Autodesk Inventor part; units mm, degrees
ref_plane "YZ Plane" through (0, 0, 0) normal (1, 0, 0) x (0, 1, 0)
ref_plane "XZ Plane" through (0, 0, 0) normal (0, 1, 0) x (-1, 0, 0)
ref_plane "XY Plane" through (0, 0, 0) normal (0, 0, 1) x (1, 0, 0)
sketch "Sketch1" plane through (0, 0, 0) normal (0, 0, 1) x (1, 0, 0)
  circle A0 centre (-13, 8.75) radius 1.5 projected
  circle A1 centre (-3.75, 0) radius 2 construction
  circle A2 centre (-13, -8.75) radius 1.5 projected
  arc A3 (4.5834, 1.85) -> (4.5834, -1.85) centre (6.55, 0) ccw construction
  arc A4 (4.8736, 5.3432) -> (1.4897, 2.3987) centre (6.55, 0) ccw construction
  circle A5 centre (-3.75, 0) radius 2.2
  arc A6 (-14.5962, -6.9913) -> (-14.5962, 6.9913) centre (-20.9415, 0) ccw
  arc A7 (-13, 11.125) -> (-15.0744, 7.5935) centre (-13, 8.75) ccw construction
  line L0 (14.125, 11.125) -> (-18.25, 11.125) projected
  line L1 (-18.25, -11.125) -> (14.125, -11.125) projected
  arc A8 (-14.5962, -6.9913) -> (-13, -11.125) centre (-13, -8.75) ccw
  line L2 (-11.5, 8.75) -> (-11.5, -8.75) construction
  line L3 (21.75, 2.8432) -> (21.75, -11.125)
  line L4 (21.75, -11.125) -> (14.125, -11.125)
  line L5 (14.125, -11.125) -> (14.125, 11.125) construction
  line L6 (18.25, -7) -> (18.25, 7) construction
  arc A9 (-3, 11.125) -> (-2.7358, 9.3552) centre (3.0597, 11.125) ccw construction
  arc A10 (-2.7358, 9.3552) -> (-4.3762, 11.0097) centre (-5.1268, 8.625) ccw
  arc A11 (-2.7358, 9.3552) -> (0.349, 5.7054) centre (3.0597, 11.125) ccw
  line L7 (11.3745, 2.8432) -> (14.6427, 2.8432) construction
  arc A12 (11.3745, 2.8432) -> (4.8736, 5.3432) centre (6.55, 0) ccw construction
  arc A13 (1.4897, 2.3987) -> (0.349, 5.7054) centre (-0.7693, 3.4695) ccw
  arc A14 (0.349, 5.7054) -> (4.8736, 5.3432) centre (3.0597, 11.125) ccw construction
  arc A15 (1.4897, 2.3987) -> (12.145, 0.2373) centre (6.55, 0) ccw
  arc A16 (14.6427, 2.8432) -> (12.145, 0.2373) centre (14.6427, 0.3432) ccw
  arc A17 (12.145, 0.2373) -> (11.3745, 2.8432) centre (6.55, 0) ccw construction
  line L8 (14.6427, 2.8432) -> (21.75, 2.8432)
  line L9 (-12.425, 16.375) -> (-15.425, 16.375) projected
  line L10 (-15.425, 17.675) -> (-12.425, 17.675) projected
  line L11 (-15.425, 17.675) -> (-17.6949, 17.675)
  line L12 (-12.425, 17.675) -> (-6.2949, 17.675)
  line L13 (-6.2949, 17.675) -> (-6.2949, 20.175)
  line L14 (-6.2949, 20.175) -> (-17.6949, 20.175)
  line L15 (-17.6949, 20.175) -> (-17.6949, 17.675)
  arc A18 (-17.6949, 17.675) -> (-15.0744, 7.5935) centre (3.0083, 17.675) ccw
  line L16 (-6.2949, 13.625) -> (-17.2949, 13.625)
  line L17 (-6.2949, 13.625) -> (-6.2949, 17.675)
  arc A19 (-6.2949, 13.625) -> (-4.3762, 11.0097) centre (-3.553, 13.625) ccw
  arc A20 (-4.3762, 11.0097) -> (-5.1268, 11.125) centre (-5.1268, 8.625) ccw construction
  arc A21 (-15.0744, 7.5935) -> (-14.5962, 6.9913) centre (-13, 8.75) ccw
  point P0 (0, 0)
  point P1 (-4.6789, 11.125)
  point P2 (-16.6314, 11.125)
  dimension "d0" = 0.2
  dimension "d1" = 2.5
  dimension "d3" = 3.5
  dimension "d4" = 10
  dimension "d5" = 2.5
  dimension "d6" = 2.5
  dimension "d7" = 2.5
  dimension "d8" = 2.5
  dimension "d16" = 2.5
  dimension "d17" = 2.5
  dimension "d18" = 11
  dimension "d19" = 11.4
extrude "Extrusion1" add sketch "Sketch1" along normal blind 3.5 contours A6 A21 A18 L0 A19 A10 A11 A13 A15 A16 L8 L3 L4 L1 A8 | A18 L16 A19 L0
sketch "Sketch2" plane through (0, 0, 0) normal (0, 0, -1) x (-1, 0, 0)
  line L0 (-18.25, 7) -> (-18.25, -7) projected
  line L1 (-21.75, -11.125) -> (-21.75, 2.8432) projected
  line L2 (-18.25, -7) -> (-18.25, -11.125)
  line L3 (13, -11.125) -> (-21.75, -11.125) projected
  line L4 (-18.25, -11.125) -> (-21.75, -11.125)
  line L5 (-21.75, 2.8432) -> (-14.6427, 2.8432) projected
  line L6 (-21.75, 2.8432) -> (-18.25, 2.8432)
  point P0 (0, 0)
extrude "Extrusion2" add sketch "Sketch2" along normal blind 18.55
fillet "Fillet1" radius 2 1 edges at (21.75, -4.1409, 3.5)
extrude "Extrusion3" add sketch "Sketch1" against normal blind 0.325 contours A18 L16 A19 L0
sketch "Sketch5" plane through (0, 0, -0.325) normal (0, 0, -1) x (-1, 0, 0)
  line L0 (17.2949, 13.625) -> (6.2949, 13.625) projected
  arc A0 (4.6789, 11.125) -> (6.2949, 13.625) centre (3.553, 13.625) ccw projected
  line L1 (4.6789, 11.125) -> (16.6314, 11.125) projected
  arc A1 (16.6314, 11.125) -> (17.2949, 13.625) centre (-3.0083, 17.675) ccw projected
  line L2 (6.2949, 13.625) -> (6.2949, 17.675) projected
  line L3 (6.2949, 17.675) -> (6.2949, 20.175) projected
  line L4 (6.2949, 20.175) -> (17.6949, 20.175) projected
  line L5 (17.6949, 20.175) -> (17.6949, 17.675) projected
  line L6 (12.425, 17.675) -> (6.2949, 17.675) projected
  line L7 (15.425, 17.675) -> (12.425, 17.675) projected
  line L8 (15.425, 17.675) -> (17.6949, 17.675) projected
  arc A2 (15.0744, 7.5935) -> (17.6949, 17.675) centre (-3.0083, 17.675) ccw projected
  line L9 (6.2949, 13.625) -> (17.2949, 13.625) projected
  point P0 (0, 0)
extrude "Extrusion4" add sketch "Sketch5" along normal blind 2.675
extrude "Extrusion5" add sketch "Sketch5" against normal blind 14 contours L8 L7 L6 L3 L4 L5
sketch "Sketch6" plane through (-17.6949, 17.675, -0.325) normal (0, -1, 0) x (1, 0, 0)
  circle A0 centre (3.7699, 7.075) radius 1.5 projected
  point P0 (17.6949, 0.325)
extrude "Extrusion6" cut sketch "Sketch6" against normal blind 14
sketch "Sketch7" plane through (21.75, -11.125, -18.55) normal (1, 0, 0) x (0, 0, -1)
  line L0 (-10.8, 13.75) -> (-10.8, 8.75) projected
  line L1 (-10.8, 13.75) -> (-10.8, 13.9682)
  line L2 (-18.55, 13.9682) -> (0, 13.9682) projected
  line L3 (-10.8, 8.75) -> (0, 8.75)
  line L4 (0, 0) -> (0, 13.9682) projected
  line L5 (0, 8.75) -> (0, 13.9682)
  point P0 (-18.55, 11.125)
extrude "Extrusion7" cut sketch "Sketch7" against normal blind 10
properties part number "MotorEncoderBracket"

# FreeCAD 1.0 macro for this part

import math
import FreeCAD as App
import Part
import Sketcher
from FreeCAD import Vector


def edges_at(feature, points):
    """Names of the edges that pass closest to the given points."""
    edges = feature.Shape.Edges
    near = lambda p: min(range(len(edges)), key=lambda i: edges[i].distToShape(Part.Vertex(*p))[0])
    return sorted({f"Edge{near(p) + 1}" for p in points})

doc = App.newDocument("Part")
body = doc.addObject("PartDesign::Body", "Body")

sketch1 = doc.addObject("Sketcher::SketchObject", "Sketch")
body.addObject(sketch1)
sketch1.AttachmentSupport = (doc.XY_Plane, [""])
sketch1.MapMode = "FlatFace"
sketch1.addGeometry(Part.ArcOfCircle(Part.Circle(Vector(-20.9, 0, 0), Vector(0, 0, 1), 9.4), math.radians(-48), math.radians(48)), False)
sketch1.addGeometry(Part.ArcOfCircle(Part.Circle(Vector(-13, -8.8, 0), Vector(0, 0, 1), 2.4), math.radians(132), math.radians(270)), False)
sketch1.addGeometry(Part.LineSegment(Vector(-13, -11.1, 0), Vector(21.8, -11.1, 0)), False)
sketch1.addGeometry(Part.LineSegment(Vector(21.8, -11.1, 0), Vector(21.8, 2.8, 0)), False)
sketch1.addGeometry(Part.LineSegment(Vector(21.8, 2.8, 0), Vector(14.6, 2.8, 0)), False)
sketch1.addGeometry(Part.ArcOfCircle(Part.Circle(Vector(14.6, 0.3, 0), Vector(0, 0, 1), 2.5), math.radians(90), math.radians(182)), False)
sketch1.addGeometry(Part.ArcOfCircle(Part.Circle(Vector(6.5, 0, 0), Vector(0, 0, 1), 5.6), math.radians(155), math.radians(362)), False)
sketch1.addGeometry(Part.ArcOfCircle(Part.Circle(Vector(-0.8, 3.5, 0), Vector(0, 0, 1), 2.5), math.radians(-25), math.radians(63)), False)
sketch1.addGeometry(Part.ArcOfCircle(Part.Circle(Vector(3.1, 11.1, 0), Vector(0, 0, 1), 6.1), math.radians(-163), math.radians(-117)), False)
sketch1.addGeometry(Part.ArcOfCircle(Part.Circle(Vector(-5.1, 8.6, 0), Vector(0, 0, 1), 2.5), math.radians(17), math.radians(73)), False)
sketch1.addGeometry(Part.ArcOfCircle(Part.Circle(Vector(-3.6, 13.6, 0), Vector(0, 0, 1), 2.7), math.radians(180), math.radians(253)), False)
sketch1.addGeometry(Part.LineSegment(Vector(-6.3, 13.6, 0), Vector(-17.3, 13.6, 0)), False)
sketch1.addGeometry(Part.ArcOfCircle(Part.Circle(Vector(3, 17.7, 0), Vector(0, 0, 1), 20.7), math.radians(-168.72), math.radians(-150.86)), False)
sketch1.addGeometry(Part.ArcOfCircle(Part.Circle(Vector(-13, 8.8, 0), Vector(0, 0, 1), 2.4), math.radians(-150.86), math.radians(-132.24)), False)
sketch1.addGeometry(Part.Circle(Vector(-13, -8.8, 0), Vector(0, 0, 1), 1.5), False)
sketch1.addGeometry(Part.Circle(Vector(-3.8, 0, 0), Vector(0, 0, 1), 2.2), False)
sketch1.addGeometry(Part.Circle(Vector(-13, 8.8, 0), Vector(0, 0, 1), 1.5), False)
sketch1.addConstraint(Sketcher.Constraint("Tangent", 0, 1, 1, 1))
sketch1.addConstraint(Sketcher.Constraint("Tangent", 1, 2, 2, 1))
sketch1.addConstraint(Sketcher.Constraint("Coincident", 2, 2, 3, 1))
sketch1.addConstraint(Sketcher.Constraint("Coincident", 3, 2, 4, 1))
sketch1.addConstraint(Sketcher.Constraint("Tangent", 4, 2, 5, 1))
sketch1.addConstraint(Sketcher.Constraint("Tangent", 5, 2, 6, 2))
sketch1.addConstraint(Sketcher.Constraint("Tangent", 6, 1, 7, 1))
sketch1.addConstraint(Sketcher.Constraint("Tangent", 7, 2, 8, 2))
sketch1.addConstraint(Sketcher.Constraint("Tangent", 8, 1, 9, 1))
sketch1.addConstraint(Sketcher.Constraint("Tangent", 9, 2, 10, 2))
sketch1.addConstraint(Sketcher.Constraint("Coincident", 10, 1, 11, 1))
sketch1.addConstraint(Sketcher.Constraint("Coincident", 11, 2, 12, 1))
sketch1.addConstraint(Sketcher.Constraint("Tangent", 12, 2, 13, 1))
sketch1.addConstraint(Sketcher.Constraint("Tangent", 13, 2, 0, 2))
sketch1.addConstraint(Sketcher.Constraint("Horizontal", 2))
sketch1.addConstraint(Sketcher.Constraint("Vertical", 3))
sketch1.addConstraint(Sketcher.Constraint("Horizontal", 4))
sketch1.addConstraint(Sketcher.Constraint("Horizontal", 11))
sketch1.addConstraint(Sketcher.Constraint("Coincident", 14, 3, 1, 3))
sketch1.addConstraint(Sketcher.Constraint("Equal", 5, 7))
sketch1.addConstraint(Sketcher.Constraint("Equal", 7, 9))
sketch1.addConstraint(Sketcher.Constraint("Equal", 14, 16))
sketch1.addConstraint(Sketcher.Constraint("Symmetric", 1, 3, 16, 3, -1))
sketch1.addConstraint(Sketcher.Constraint("Symmetric", 0, 1, 13, 2, -1))
sketch1.addConstraint(Sketcher.Constraint("PointOnObject", 6, 3, -1))
sketch1.addConstraint(Sketcher.Constraint("PointOnObject", 15, 3, -1))
sketch1.addConstraint(Sketcher.Constraint("Radius", 5, 2.5))
sketch1.addConstraint(Sketcher.Constraint("DistanceX", 11, 2, 11, 1, 11.0))
sketch1.addConstraint(Sketcher.Constraint("Diameter", 14, 3.0))
sketch1.addConstraint(Sketcher.Constraint("Diameter", 15, 4.4))
sketch1.addConstraint(Sketcher.Constraint("Radius", 6, 5.6))
sketch1.addConstraint(Sketcher.Constraint("DistanceY", 9, 3, 8, 3, 2.5))
sketch1.addConstraint(Sketcher.Constraint("DistanceY", 8, 3, 10, 3, 2.5))
sketch1.addConstraint(Sketcher.Constraint("DistanceX", 1, 3, -1, 1, 13.0))
sketch1.addConstraint(Sketcher.Constraint("Radius", 1, 2.375))
sketch1.addConstraint(Sketcher.Constraint("Radius", 10, 2.742))
sketch1.addConstraint(Sketcher.Constraint("Radius", 13, 2.377))
sketch1.addConstraint(Sketcher.Constraint("DistanceY", 9, 3, 10, 1, 5.0))
sketch1.addConstraint(Sketcher.Constraint("DistanceX", 2, 1, 2, 2, 34.75))
sketch1.addConstraint(Sketcher.Constraint("Radius", 0, 9.4415))
sketch1.addConstraint(Sketcher.Constraint("Radius", 8, 6.0597))
sketch1.addConstraint(Sketcher.Constraint("Radius", 12, 20.7032))
sketch1.addConstraint(Sketcher.Constraint("DistanceX", 15, 3, 6, 3, 10.3))
sketch1.addConstraint(Sketcher.Constraint("DistanceX", 6, 3, 2, 2, 15.2))
sketch1.addConstraint(Sketcher.Constraint("DistanceY", 1, 3, -1, 1, 8.75))
sketch1.addConstraint(Sketcher.Constraint("DistanceY", 8, 3, 12, 3, 6.55))
sketch1.addConstraint(Sketcher.Constraint("DistanceY", 2, 2, 8, 3, 22.25))
sketch1.addConstraint(Sketcher.Constraint("DistanceX", 4, 2, 4, 1, 7.1073))
pad1 = doc.addObject("PartDesign::Pad", "Pad")
body.addObject(pad1)
pad1.Profile = sketch1
pad1.Length = 3.5

sketch2 = doc.addObject("Sketcher::SketchObject", "Sketch001")
body.addObject(sketch2)
sketch2.AttachmentSupport = (doc.XY_Plane, [""])
sketch2.MapMode = "FlatFace"
sketch2.addGeometry(Part.LineSegment(Vector(18.2, -11.1, 0), Vector(18.2, 2.8, 0)), False)
sketch2.addGeometry(Part.LineSegment(Vector(18.2, 2.8, 0), Vector(21.8, 2.8, 0)), False)
sketch2.addGeometry(Part.LineSegment(Vector(21.8, 2.8, 0), Vector(21.8, -11.1, 0)), False)
sketch2.addGeometry(Part.LineSegment(Vector(21.8, -11.1, 0), Vector(18.2, -11.1, 0)), False)
sketch2.addConstraint(Sketcher.Constraint("Coincident", 0, 2, 1, 1))
sketch2.addConstraint(Sketcher.Constraint("Coincident", 1, 2, 2, 1))
sketch2.addConstraint(Sketcher.Constraint("Coincident", 2, 2, 3, 1))
sketch2.addConstraint(Sketcher.Constraint("Coincident", 3, 2, 0, 1))
sketch2.addConstraint(Sketcher.Constraint("Vertical", 0))
sketch2.addConstraint(Sketcher.Constraint("Horizontal", 1))
sketch2.addConstraint(Sketcher.Constraint("Vertical", 2))
sketch2.addConstraint(Sketcher.Constraint("Horizontal", 3))
sketch2.addConstraint(Sketcher.Constraint("DistanceX", 1, 1, 1, 2, 3.5))
sketch2.addConstraint(Sketcher.Constraint("DistanceX", -1, 1, 0, 2, 18.25))
sketch2.addConstraint(Sketcher.Constraint("DistanceY", 0, 1, 0, 2, 13.9682))
sketch2.addConstraint(Sketcher.Constraint("DistanceY", 2, 2, -1, 1, 11.125))
pad2 = doc.addObject("PartDesign::Pad", "Pad001")
body.addObject(pad2)
pad2.Profile = sketch2
pad2.Length = 18.55
pad2.Reversed = True
doc.recompute()

fillet = doc.addObject("PartDesign::Fillet", "Fillet")
body.addObject(fillet)
fillet.Base = (pad2, edges_at(pad2, [(21.75, -4.141, 3.5)]))
fillet.Radius = 2

sketch3 = doc.addObject("Sketcher::SketchObject", "Sketch002")
body.addObject(sketch3)
sketch3.AttachmentSupport = (doc.XY_Plane, [""])
sketch3.MapMode = "FlatFace"
sketch3.addGeometry(Part.ArcOfCircle(Part.Circle(Vector(3, 17.7, 0), Vector(0, 0, 1), 20.7), math.radians(-168.72), math.radians(-161.56)), False)
sketch3.addGeometry(Part.LineSegment(Vector(-16.6, 11.1, 0), Vector(-4.7, 11.1, 0)), False)
sketch3.addGeometry(Part.ArcOfCircle(Part.Circle(Vector(-3.6, 13.6, 0), Vector(0, 0, 1), 2.7), math.radians(180), math.radians(246)), False)
sketch3.addGeometry(Part.LineSegment(Vector(-6.3, 13.6, 0), Vector(-17.3, 13.6, 0)), False)
sketch3.addConstraint(Sketcher.Constraint("Coincident", 0, 2, 1, 1))
sketch3.addConstraint(Sketcher.Constraint("Coincident", 1, 2, 2, 2))
sketch3.addConstraint(Sketcher.Constraint("Coincident", 2, 1, 3, 1))
sketch3.addConstraint(Sketcher.Constraint("Coincident", 3, 2, 0, 1))
sketch3.addConstraint(Sketcher.Constraint("Horizontal", 1))
sketch3.addConstraint(Sketcher.Constraint("Horizontal", 3))
sketch3.addConstraint(Sketcher.Constraint("DistanceX", 3, 2, 3, 1, 11.0))
sketch3.addConstraint(Sketcher.Constraint("DistanceY", 0, 2, 2, 3, 2.5))
sketch3.addConstraint(Sketcher.Constraint("DistanceY", 1, 2, 2, 1, 2.5))
sketch3.addConstraint(Sketcher.Constraint("Radius", 2, 2.742))
sketch3.addConstraint(Sketcher.Constraint("Radius", 0, 20.7032))
sketch3.addConstraint(Sketcher.Constraint("DistanceY", 2, 3, 0, 3, 4.05))
sketch3.addConstraint(Sketcher.Constraint("DistanceY", -1, 1, 0, 3, 17.675))
sketch3.addConstraint(Sketcher.Constraint("DistanceX", 2, 3, -1, 1, 3.553))
pad3 = doc.addObject("PartDesign::Pad", "Pad002")
body.addObject(pad3)
pad3.Profile = sketch3
pad3.Length = 0.325
pad3.Reversed = True

sketch4 = doc.addObject("Sketcher::SketchObject", "Sketch003")
body.addObject(sketch4)
sketch4.AttachmentSupport = (doc.XY_Plane, [""])
sketch4.MapMode = "FlatFace"
sketch4.AttachmentOffset = App.Placement(Vector(0, 0, -0.325), App.Rotation())
sketch4.addGeometry(Part.ArcOfCircle(Part.Circle(Vector(3, 17.7, 0), Vector(0, 0, 1), 20.7), math.radians(-168.72), math.radians(-161.56)), False)
sketch4.addGeometry(Part.ArcOfCircle(Part.Circle(Vector(3, 17.7, 0), Vector(0, 0, 1), 20.7), math.radians(180), math.radians(191.28)), False)
sketch4.addGeometry(Part.LineSegment(Vector(-17.7, 17.7, 0), Vector(-17.7, 20.2, 0)), False)
sketch4.addGeometry(Part.LineSegment(Vector(-17.7, 20.2, 0), Vector(-6.3, 20.2, 0)), False)
sketch4.addGeometry(Part.LineSegment(Vector(-6.3, 20.2, 0), Vector(-6.3, 13.6, 0)), False)
sketch4.addGeometry(Part.ArcOfCircle(Part.Circle(Vector(-3.6, 13.6, 0), Vector(0, 0, 1), 2.7), math.radians(180), math.radians(246)), False)
sketch4.addGeometry(Part.LineSegment(Vector(-4.7, 11.1, 0), Vector(-16.6, 11.1, 0)), False)
sketch4.addConstraint(Sketcher.Constraint("Tangent", 0, 1, 1, 2))
sketch4.addConstraint(Sketcher.Constraint("Tangent", 1, 1, 2, 1))
sketch4.addConstraint(Sketcher.Constraint("Coincident", 2, 2, 3, 1))
sketch4.addConstraint(Sketcher.Constraint("Coincident", 3, 2, 4, 1))
sketch4.addConstraint(Sketcher.Constraint("Tangent", 4, 2, 5, 1))
sketch4.addConstraint(Sketcher.Constraint("Coincident", 5, 2, 6, 1))
sketch4.addConstraint(Sketcher.Constraint("Coincident", 6, 2, 0, 2))
sketch4.addConstraint(Sketcher.Constraint("Vertical", 2))
sketch4.addConstraint(Sketcher.Constraint("Horizontal", 3))
sketch4.addConstraint(Sketcher.Constraint("Vertical", 4))
sketch4.addConstraint(Sketcher.Constraint("Horizontal", 6))
sketch4.addConstraint(Sketcher.Constraint("Horizontal", 5, 3, 0, 1))
sketch4.addConstraint(Sketcher.Constraint("DistanceX", 3, 1, 3, 2, 11.4))
sketch4.addConstraint(Sketcher.Constraint("DistanceY", 2, 1, 2, 2, 2.5))
sketch4.addConstraint(Sketcher.Constraint("DistanceX", 0, 1, 4, 2, 11.0))
sketch4.addConstraint(Sketcher.Constraint("DistanceY", 4, 2, 4, 1, 6.55))
sketch4.addConstraint(Sketcher.Constraint("Radius", 0, 20.7162))
sketch4.addConstraint(Sketcher.Constraint("Radius", 5, 2.7418))
sketch4.addConstraint(Sketcher.Constraint("DistanceY", 5, 2, 5, 3, 2.5))
sketch4.addConstraint(Sketcher.Constraint("DistanceY", -1, 1, 1, 3, 17.675))
sketch4.addConstraint(Sketcher.Constraint("DistanceX", 5, 3, -1, 1, 3.553))
pad4 = doc.addObject("PartDesign::Pad", "Pad003")
body.addObject(pad4)
pad4.Profile = sketch4
pad4.Length = 2.675
pad4.Reversed = True

sketch5 = doc.addObject("Sketcher::SketchObject", "Sketch004")
body.addObject(sketch5)
sketch5.AttachmentSupport = (doc.XY_Plane, [""])
sketch5.MapMode = "FlatFace"
sketch5.AttachmentOffset = App.Placement(Vector(0, 0, -0.325), App.Rotation())
sketch5.addGeometry(Part.LineSegment(Vector(-6.3, 17.7, 0), Vector(-17.7, 17.7, 0)), False)
sketch5.addGeometry(Part.LineSegment(Vector(-17.7, 17.7, 0), Vector(-17.7, 20.2, 0)), False)
sketch5.addGeometry(Part.LineSegment(Vector(-17.7, 20.2, 0), Vector(-6.3, 20.2, 0)), False)
sketch5.addGeometry(Part.LineSegment(Vector(-6.3, 20.2, 0), Vector(-6.3, 17.7, 0)), False)
sketch5.addConstraint(Sketcher.Constraint("Coincident", 0, 2, 1, 1))
sketch5.addConstraint(Sketcher.Constraint("Coincident", 1, 2, 2, 1))
sketch5.addConstraint(Sketcher.Constraint("Coincident", 2, 2, 3, 1))
sketch5.addConstraint(Sketcher.Constraint("Coincident", 3, 2, 0, 1))
sketch5.addConstraint(Sketcher.Constraint("Horizontal", 0))
sketch5.addConstraint(Sketcher.Constraint("Vertical", 1))
sketch5.addConstraint(Sketcher.Constraint("Horizontal", 2))
sketch5.addConstraint(Sketcher.Constraint("Vertical", 3))
sketch5.addConstraint(Sketcher.Constraint("DistanceX", 0, 2, 0, 1, 11.4))
sketch5.addConstraint(Sketcher.Constraint("DistanceY", 1, 1, 1, 2, 2.5))
sketch5.addConstraint(Sketcher.Constraint("DistanceX", 0, 2, -1, 1, 17.695))
sketch5.addConstraint(Sketcher.Constraint("DistanceY", -1, 1, 0, 2, 17.675))
pad5 = doc.addObject("PartDesign::Pad", "Pad004")
body.addObject(pad5)
pad5.Profile = sketch5
pad5.Length = 14

sketch6 = doc.addObject("Sketcher::SketchObject", "Sketch005")
body.addObject(sketch6)
sketch6.AttachmentSupport = (doc.XZ_Plane, [""])
sketch6.MapMode = "FlatFace"
sketch6.AttachmentOffset = App.Placement(Vector(0, 0, -17.675), App.Rotation())
sketch6.addGeometry(Part.Circle(Vector(-13.9, 6.8, 0), Vector(0, 0, 1), 1.5), False)
sketch6.addConstraint(Sketcher.Constraint("Diameter", 0, 3.0))
sketch6.addConstraint(Sketcher.Constraint("DistanceY", -1, 1, 0, 3, 6.75))
sketch6.addConstraint(Sketcher.Constraint("DistanceX", 0, 3, -1, 1, 13.925))
pocket1 = doc.addObject("PartDesign::Pocket", "Pocket")
body.addObject(pocket1)
pocket1.Profile = sketch6
pocket1.Length = 14

sketch7 = doc.addObject("Sketcher::SketchObject", "Sketch006")
body.addObject(sketch7)
sketch7.AttachmentSupport = (doc.YZ_Plane, [""])
sketch7.MapMode = "FlatFace"
sketch7.AttachmentOffset = App.Placement(Vector(0, 0, 21.75), App.Rotation())
sketch7.addGeometry(Part.LineSegment(Vector(3, -8, 0), Vector(-2, -8, 0)), False)
sketch7.addGeometry(Part.LineSegment(Vector(-2, -8, 0), Vector(-2, -19, 0)), False)
sketch7.addGeometry(Part.LineSegment(Vector(-2, -19, 0), Vector(3, -19, 0)), False)
sketch7.addGeometry(Part.LineSegment(Vector(3, -19, 0), Vector(3, -8, 0)), False)
sketch7.addConstraint(Sketcher.Constraint("Coincident", 0, 2, 1, 1))
sketch7.addConstraint(Sketcher.Constraint("Coincident", 1, 2, 2, 1))
sketch7.addConstraint(Sketcher.Constraint("Coincident", 2, 2, 3, 1))
sketch7.addConstraint(Sketcher.Constraint("Coincident", 3, 2, 0, 1))
sketch7.addConstraint(Sketcher.Constraint("Horizontal", 0))
sketch7.addConstraint(Sketcher.Constraint("Vertical", 1))
sketch7.addConstraint(Sketcher.Constraint("Horizontal", 2))
sketch7.addConstraint(Sketcher.Constraint("Vertical", 3))
sketch7.addConstraint(Sketcher.Constraint("DistanceY", 1, 2, 1, 1, 10.8))
sketch7.addConstraint(Sketcher.Constraint("DistanceY", 0, 2, -1, 1, 7.75))
sketch7.addConstraint(Sketcher.Constraint("DistanceX", 0, 2, 0, 1, 5.2182))
sketch7.addConstraint(Sketcher.Constraint("DistanceX", 0, 2, -1, 1, 2.375))
pocket2 = doc.addObject("PartDesign::Pocket", "Pocket001")
body.addObject(pocket2)
pocket2.Profile = sketch7
pocket2.Length = 10

doc.recompute()
